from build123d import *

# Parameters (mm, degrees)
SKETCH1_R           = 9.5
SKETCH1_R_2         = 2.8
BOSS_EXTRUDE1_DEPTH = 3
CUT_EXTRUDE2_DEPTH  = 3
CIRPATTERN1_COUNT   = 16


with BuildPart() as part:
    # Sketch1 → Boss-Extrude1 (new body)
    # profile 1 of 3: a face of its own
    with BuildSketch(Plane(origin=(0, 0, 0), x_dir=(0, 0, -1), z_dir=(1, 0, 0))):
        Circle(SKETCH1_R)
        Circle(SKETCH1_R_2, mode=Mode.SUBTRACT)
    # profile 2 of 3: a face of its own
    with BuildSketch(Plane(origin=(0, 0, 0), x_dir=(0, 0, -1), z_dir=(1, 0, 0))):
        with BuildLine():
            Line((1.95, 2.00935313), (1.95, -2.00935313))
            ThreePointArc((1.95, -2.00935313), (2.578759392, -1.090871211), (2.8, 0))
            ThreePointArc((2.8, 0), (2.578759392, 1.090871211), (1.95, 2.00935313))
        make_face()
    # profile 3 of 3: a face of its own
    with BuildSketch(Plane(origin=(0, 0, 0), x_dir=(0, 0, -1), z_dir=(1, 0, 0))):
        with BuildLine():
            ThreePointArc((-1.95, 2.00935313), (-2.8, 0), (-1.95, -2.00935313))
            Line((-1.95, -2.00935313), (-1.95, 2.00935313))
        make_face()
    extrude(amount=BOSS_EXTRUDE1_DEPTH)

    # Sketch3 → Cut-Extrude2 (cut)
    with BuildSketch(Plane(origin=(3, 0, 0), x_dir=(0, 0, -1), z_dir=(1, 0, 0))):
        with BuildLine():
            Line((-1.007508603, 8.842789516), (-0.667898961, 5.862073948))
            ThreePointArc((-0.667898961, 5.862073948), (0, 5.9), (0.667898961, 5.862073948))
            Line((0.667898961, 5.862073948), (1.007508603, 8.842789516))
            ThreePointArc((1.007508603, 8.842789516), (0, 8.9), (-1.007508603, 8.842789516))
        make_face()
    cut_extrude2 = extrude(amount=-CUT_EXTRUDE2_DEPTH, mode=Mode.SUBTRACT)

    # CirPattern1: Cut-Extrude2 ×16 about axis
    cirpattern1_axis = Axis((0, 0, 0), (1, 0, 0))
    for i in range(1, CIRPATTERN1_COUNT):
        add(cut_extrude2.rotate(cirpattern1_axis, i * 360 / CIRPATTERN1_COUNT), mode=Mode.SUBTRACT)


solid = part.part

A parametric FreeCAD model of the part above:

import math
import FreeCAD as App
import Part
import Sketcher
from FreeCAD import Vector
Q = App.Units.Quantity

doc = App.newDocument("Part")
body = doc.addObject("PartDesign::Body", "Body")

# Sketch on YZ plane
sketch1 = body.newObject("Sketcher::SketchObject", "Sketch")
sketch1.AttachmentSupport = (doc.getObject("YZ_Plane"), [""])
sketch1.MapMode = "FlatFace"
sketch1.addGeometry([
    Part.Circle(Vector(0, 0, 0), Vector(0, 0, 1), 9.5),  # 0
    Part.ArcOfCircle(Part.Circle(Vector(0, 0, 0), Vector(0, 0, 1), 2.8), math.radians(-44.141165), math.radians(44.141165)),  # 1
    Part.LineSegment(Vector(2.009353, -1.95, 0), Vector(-2.009353, -1.95, 0)),  # 2
    Part.ArcOfCircle(Part.Circle(Vector(0, 0, 0), Vector(0, 0, 1), 2.8), math.radians(135.858835), math.radians(224.141165)),  # 3
    Part.LineSegment(Vector(-2.009353, 1.95, 0), Vector(2.009353, 1.95, 0)),  # 4
], False)
sketch1.addConstraint([
    Sketcher.Constraint("Coincident", 1, 1, 2, 1),
    Sketcher.Constraint("Coincident", 2, 2, 3, 2),
    Sketcher.Constraint("Coincident", 3, 1, 4, 1),
    Sketcher.Constraint("Coincident", 4, 2, 1, 2),
    Sketcher.Constraint("Horizontal", 2),
    Sketcher.Constraint("Horizontal", 4),
    Sketcher.Constraint("Coincident", 0, 3, -1, 1),
    Sketcher.Constraint("Coincident", 1, 3, -1, 1),
    Sketcher.Constraint("Coincident", 3, 3, -1, 1),
    Sketcher.Constraint("Equal", 1, 3),
    Sketcher.Constraint("Vertical", 2, 2, 3, 1),
    Sketcher.Constraint("Diameter", 0, Q("19 mm")),
    Sketcher.Constraint("Radius", 1, Q("2.8 mm")),
    Sketcher.Constraint("DistanceY", 2, 2, 3, 1, Q("3.9 mm")),
])
pad1 = body.newObject("PartDesign::Pad", "Pad")
pad1.Profile = sketch1
pad1.Length = 3

# Sketch on YZ plane
sketch2 = body.newObject("Sketcher::SketchObject", "Sketch001")
sketch2.AttachmentSupport = (doc.getObject("YZ_Plane"), [""])
sketch2.MapMode = "FlatFace"
sketch2.AttachmentOffset = App.Placement(Vector(0, 0, 3), App.Rotation())
sketch2.addGeometry([
    Part.LineSegment(Vector(8.84279, 1.007509, 0), Vector(5.862074, 0.667899, 0)),
    Part.ArcOfCircle(Part.Circle(Vector(0, 0, 0), Vector(0, 0, 1), 5.9), math.radians(-6.5), math.radians(6.5)),
    Part.LineSegment(Vector(5.862074, -0.667899, 0), Vector(8.84279, -1.007509, 0)),
    Part.ArcOfCircle(Part.Circle(Vector(0, 0, 0), Vector(0, 0, 1), 8.9), math.radians(-6.5), math.radians(6.5)),
], False)
sketch2.addConstraint([
    Sketcher.Constraint("Coincident", 0, 2, 1, 2),
    Sketcher.Constraint("Coincident", 1, 1, 2, 1),
    Sketcher.Constraint("Coincident", 2, 2, 3, 1),
    Sketcher.Constraint("Coincident", 3, 2, 0, 1),
    Sketcher.Constraint("Coincident", 1, 3, -1, 1),
    Sketcher.Constraint("Coincident", 3, 3, -1, 1),
    Sketcher.Constraint("Vertical", 0, 2, 1, 1),
    Sketcher.Constraint("Vertical", 2, 2, 3, 2),
    Sketcher.Constraint("Radius", 1, Q("5.9 mm")),
    Sketcher.Constraint("Radius", 3, Q("8.9 mm")),
    Sketcher.Constraint("Angle", 0, Q("-173.5 deg")),
    Sketcher.Constraint("DistanceY", -1, 1, 0, 2, Q("0.667899 mm")),
])
pocket1 = body.newObject("PartDesign::Pocket", "Pocket")
pocket1.Profile = sketch2
pocket1.Length = 3
doc.recompute()

polarpattern = body.newObject("PartDesign::PolarPattern", "PolarPattern")
polarpattern.Originals = [pocket1]
polarpattern.Axis = (doc.getObject("X_Axis"), [""])
polarpattern.Angle = 360
polarpattern.Occurrences = 16
body.Tip = polarpattern

doc.recompute()
